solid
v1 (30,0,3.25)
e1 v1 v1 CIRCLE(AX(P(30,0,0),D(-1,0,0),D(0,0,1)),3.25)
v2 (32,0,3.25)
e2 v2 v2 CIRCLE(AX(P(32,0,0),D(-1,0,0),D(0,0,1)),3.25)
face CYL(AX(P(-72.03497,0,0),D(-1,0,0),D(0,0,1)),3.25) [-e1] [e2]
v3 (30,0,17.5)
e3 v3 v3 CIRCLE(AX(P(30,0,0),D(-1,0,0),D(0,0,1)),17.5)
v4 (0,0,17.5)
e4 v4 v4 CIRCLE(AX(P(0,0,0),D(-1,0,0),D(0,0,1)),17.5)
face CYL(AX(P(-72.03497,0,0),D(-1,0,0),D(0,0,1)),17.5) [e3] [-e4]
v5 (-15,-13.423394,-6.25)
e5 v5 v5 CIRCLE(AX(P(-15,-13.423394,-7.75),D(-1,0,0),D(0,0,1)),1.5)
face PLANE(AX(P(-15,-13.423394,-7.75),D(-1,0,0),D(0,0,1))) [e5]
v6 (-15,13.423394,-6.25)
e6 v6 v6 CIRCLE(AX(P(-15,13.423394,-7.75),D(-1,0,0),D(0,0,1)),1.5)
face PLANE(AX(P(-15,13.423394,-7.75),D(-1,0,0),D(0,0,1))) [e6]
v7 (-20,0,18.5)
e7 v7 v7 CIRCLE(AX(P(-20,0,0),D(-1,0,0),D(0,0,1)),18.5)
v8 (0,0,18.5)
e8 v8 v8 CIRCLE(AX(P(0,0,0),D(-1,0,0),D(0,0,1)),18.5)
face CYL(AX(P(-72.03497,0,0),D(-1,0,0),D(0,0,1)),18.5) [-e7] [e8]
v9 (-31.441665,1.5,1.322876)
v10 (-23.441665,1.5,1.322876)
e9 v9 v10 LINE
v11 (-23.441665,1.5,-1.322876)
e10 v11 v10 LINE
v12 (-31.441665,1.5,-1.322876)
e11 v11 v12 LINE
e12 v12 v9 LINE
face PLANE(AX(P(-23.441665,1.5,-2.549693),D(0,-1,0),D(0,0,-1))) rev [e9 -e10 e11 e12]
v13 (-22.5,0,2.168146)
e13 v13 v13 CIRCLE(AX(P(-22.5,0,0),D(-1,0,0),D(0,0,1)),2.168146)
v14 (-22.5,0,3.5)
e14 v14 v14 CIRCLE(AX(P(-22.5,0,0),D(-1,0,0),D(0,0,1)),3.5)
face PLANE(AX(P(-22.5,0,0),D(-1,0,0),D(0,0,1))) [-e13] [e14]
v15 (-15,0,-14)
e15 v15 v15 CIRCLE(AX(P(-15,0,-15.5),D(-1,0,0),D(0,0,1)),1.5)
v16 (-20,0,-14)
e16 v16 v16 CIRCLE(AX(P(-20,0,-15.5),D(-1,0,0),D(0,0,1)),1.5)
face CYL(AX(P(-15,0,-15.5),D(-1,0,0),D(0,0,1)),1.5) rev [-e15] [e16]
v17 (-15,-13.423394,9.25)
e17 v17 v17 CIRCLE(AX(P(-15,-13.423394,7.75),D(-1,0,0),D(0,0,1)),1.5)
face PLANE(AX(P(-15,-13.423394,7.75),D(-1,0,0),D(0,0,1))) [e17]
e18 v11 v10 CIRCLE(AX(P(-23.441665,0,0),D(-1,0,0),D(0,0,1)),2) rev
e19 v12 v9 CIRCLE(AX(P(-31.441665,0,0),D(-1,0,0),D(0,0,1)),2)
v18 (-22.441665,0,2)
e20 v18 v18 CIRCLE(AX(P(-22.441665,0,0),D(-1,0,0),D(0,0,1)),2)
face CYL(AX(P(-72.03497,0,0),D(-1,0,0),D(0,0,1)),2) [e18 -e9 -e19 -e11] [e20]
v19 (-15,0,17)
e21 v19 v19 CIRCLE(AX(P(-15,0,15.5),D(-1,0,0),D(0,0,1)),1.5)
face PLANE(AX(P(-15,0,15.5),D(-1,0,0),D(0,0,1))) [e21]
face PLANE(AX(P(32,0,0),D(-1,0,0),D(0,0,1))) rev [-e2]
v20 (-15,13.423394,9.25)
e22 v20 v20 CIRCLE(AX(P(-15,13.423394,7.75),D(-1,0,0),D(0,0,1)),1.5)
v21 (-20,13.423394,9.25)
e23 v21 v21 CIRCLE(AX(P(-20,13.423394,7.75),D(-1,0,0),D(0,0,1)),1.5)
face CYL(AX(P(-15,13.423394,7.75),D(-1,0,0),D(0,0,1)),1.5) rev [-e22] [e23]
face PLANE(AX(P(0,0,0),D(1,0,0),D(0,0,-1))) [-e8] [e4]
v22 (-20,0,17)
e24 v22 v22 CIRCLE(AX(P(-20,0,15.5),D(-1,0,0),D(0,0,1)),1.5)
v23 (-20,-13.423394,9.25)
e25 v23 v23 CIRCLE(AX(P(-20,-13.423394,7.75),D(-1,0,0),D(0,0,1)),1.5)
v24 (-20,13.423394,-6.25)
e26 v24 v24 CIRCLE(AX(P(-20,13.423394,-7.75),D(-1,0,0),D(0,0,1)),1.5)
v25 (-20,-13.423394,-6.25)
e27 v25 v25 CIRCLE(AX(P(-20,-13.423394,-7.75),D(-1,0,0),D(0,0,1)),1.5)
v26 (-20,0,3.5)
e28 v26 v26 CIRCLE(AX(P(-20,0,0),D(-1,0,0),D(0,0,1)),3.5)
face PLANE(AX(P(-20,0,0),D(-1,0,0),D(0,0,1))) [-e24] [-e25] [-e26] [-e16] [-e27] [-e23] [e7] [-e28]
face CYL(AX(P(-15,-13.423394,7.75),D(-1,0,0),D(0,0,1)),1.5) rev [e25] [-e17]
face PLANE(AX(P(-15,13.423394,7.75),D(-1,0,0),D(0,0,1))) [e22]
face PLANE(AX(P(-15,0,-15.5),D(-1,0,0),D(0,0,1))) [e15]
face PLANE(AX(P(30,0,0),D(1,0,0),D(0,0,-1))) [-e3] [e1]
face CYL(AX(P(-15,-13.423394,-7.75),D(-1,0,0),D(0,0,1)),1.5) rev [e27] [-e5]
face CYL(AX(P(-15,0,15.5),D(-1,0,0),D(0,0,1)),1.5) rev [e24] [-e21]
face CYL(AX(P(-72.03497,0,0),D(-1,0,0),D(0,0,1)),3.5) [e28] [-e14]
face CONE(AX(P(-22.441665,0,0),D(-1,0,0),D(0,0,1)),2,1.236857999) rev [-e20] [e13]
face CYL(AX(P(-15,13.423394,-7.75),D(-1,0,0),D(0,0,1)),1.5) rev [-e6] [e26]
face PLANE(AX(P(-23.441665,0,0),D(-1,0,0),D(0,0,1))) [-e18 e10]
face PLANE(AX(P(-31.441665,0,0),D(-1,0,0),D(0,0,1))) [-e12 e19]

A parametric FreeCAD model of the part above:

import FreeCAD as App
import Part
import Sketcher
from FreeCAD import Vector


def add_polygon(sketch, points):
    """Adds a closed chain of lines whose ends are joined by coincident constraints."""
    first, n = sketch.GeometryCount, len(points)
    for a, b in zip(points, points[1:] + points[:1]):
        sketch.addGeometry(Part.LineSegment(App.Vector(*a, 0), App.Vector(*b, 0)), False)
    for i in range(n):
        sketch.addConstraint(Sketcher.Constraint("Coincident", first + i, 2, first + (i + 1) % n, 1))

doc = App.newDocument("Part")
body = doc.addObject("PartDesign::Body", "Body")

sketch1 = body.newObject("Sketcher::SketchObject", "Sketch")
sketch1.AttachmentSupport = (doc.getObject("XY_Plane"), [""])
sketch1.MapMode = "FlatFace"
add_polygon(sketch1, [(30, 3.25), (30, 17.5), (0, 17.5), (0, 18.5), (-20, 18.5), (-20, 3.5), (-22.5, 3.5), (-22.5, 2.17), (-22.44, 2), (-31.44, 2), (-31.44, 0), (32, 0), (32, 3.25)])
sketch1.addConstraint([
    Sketcher.Constraint("Vertical", 0),
    Sketcher.Constraint("Horizontal", 1),
    Sketcher.Constraint("Vertical", 2),
    Sketcher.Constraint("Horizontal", 3),
    Sketcher.Constraint("Vertical", 4),
    Sketcher.Constraint("Horizontal", 5),
    Sketcher.Constraint("Vertical", 6),
    Sketcher.Constraint("Horizontal", 8),
    Sketcher.Constraint("Vertical", 9),
    Sketcher.Constraint("Horizontal", 10),
    Sketcher.Constraint("Vertical", 11),
    Sketcher.Constraint("Horizontal", 12),
    Sketcher.Constraint("PointOnObject", 1, 2, -2),
    Sketcher.Constraint("PointOnObject", 9, 2, -1),
    Sketcher.Constraint("Equal", 12, 9),
    Sketcher.Constraint("DistanceX", 1, 2, 1, 1, 30.0),
    Sketcher.Constraint("DistanceX", 3, 2, 3, 1, 20.0),
    Sketcher.Constraint("DistanceX", 8, 2, 8, 1, 9.0),
    Sketcher.Constraint("DistanceX", 12, 2, 12, 1, 2.0),
    Sketcher.Constraint("DistanceY", 2, 1, 2, 2, 1.0),
    Sketcher.Constraint("DistanceY", 4, 2, 4, 1, 15.0),
    Sketcher.Constraint("DistanceX", 5, 2, 5, 1, 2.5),
    Sketcher.Constraint("DistanceY", 0, 1, 0, 2, 14.25),
    Sketcher.Constraint("DistanceY", 11, 1, 11, 2, 3.25),
    Sketcher.Constraint("DistanceX", 10, 1, 10, 2, 63.441665),
    Sketcher.Constraint("DistanceY", 6, 2, 6, 1, 1.331854),
])
revolution = body.newObject("PartDesign::Revolution", "Revolution")
revolution.Profile = sketch1
revolution.ReferenceAxis = (sketch1, ["H_Axis"])
revolution.Angle = 360

sketch2 = body.newObject("Sketcher::SketchObject", "Sketch001")
sketch2.AttachmentSupport = (doc.getObject("YZ_Plane"), [""])
sketch2.MapMode = "FlatFace"
sketch2.AttachmentOffset = App.Placement(Vector(0, 0, -20), App.Rotation())
sketch2.addGeometry([
    Part.Circle(Vector(0, 15.5, 0), Vector(0, 0, 1), 1.5),
    Part.Circle(Vector(-13.4, 7.8, 0), Vector(0, 0, 1), 1.5),
    Part.Circle(Vector(-13.4, -7.8, 0), Vector(0, 0, 1), 1.5),
    Part.Circle(Vector(0, -15.5, 0), Vector(0, 0, 1), 1.5),
    Part.Circle(Vector(13.4, -7.8, 0), Vector(0, 0, 1), 1.5),
    Part.Circle(Vector(13.4, 7.8, 0), Vector(0, 0, 1), 1.5),
], False)
sketch2.addConstraint([
    Sketcher.Constraint("Equal", 0, 1),
    Sketcher.Constraint("Equal", 1, 2),
    Sketcher.Constraint("Equal", 2, 3),
    Sketcher.Constraint("Equal", 3, 4),
    Sketcher.Constraint("Equal", 4, 5),
    Sketcher.Constraint("Symmetric", 0, 3, 3, 3, -1, 1),
    Sketcher.Constraint("Symmetric", 1, 3, 4, 3, -1, 1),
    Sketcher.Constraint("Symmetric", 2, 3, 5, 3, -1, 1),
    Sketcher.Constraint("Symmetric", 2, 3, 4, 3, -2),
    Sketcher.Constraint("PointOnObject", 0, 3, -2),
    Sketcher.Constraint("Diameter", 0, 3.0),
    Sketcher.Constraint("DistanceY", 3, 3, 0, 3, 31.0),
    Sketcher.Constraint("DistanceY", 2, 3, 1, 3, 15.5),
    Sketcher.Constraint("DistanceX", 1, 3, -1, 1, 13.423394),
])
pocket1 = body.newObject("PartDesign::Pocket", "Pocket")
pocket1.Profile = sketch2
pocket1.Length = 5
pocket1.Reversed = True

sketch3 = body.newObject("Sketcher::SketchObject", "Sketch002")
sketch3.AttachmentSupport = (doc.getObject("YZ_Plane"), [""])
sketch3.MapMode = "FlatFace"
sketch3.AttachmentOffset = App.Placement(Vector(0, 0, -31.441665), App.Rotation())
add_polygon(sketch3, [(3.2, -2.5), (1.5, -2.5), (1.5, 2.6), (3.2, 2.6)])
sketch3.addConstraint([
    Sketcher.Constraint("Horizontal", 0),
    Sketcher.Constraint("Vertical", 1),
    Sketcher.Constraint("Horizontal", 2),
    Sketcher.Constraint("Vertical", 3),
    Sketcher.Constraint("DistanceX", -1, 1, 0, 2, 1.5),
    Sketcher.Constraint("DistanceX", 0, 2, 0, 1, 1.657523),
    Sketcher.Constraint("DistanceY", 1, 1, 1, 2, 5.127083),
    Sketcher.Constraint("DistanceY", -1, 1, 1, 2, 2.57739),
])
pocket2 = body.newObject("PartDesign::Pocket", "Pocket001")
pocket2.Profile = sketch3
pocket2.Length = 8
pocket2.Reversed = True

doc.recompute()
